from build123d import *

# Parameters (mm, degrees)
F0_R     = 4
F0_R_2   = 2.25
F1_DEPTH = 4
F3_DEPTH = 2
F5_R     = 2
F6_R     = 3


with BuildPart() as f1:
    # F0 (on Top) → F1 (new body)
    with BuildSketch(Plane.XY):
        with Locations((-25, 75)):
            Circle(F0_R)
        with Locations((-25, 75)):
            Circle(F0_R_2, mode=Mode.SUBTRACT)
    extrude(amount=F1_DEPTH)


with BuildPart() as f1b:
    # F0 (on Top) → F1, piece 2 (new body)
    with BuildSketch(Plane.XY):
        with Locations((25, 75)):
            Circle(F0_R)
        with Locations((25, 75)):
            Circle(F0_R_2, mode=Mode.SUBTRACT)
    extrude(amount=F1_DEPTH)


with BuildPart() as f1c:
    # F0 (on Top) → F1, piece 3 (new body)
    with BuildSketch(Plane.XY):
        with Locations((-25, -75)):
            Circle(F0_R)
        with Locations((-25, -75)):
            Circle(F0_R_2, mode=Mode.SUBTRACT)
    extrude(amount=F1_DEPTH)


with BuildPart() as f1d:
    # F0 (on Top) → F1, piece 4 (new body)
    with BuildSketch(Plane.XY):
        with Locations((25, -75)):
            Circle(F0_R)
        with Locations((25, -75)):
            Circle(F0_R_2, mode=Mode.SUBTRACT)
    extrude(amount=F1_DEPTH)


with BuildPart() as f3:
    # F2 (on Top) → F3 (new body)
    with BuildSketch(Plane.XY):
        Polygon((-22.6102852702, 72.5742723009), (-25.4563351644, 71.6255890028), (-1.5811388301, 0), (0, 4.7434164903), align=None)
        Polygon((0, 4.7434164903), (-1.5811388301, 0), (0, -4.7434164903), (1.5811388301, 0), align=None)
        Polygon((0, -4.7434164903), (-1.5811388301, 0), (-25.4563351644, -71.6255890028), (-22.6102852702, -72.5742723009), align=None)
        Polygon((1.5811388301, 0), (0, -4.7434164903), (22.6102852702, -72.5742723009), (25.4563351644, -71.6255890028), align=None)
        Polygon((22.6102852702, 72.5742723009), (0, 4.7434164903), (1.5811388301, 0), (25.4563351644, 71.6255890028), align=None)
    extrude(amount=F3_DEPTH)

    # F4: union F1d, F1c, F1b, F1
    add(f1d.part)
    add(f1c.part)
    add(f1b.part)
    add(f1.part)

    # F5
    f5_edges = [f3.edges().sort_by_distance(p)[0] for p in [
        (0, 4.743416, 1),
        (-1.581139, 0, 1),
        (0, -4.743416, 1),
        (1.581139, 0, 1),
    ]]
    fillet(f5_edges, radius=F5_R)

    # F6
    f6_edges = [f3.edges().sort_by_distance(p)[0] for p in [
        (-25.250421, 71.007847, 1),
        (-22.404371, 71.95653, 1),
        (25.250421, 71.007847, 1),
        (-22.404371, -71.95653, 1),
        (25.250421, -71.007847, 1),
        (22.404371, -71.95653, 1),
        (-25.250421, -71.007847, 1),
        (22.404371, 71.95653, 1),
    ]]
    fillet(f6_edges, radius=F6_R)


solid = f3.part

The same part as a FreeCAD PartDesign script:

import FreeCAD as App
import Part
import Sketcher

V = App.Vector


def edges_at(feature, points):
    """Names of the edges that pass closest to the given points."""
    edges = feature.Shape.Edges
    near = lambda p: min(range(len(edges)), key=lambda i: edges[i].distToShape(Part.Vertex(*p))[0])
    return sorted({f"Edge{near(p) + 1}" for p in points})


def add_polygon(sketch, points):
    """Adds a closed chain of lines whose ends are joined by coincident constraints."""
    first, n = sketch.GeometryCount, len(points)
    for a, b in zip(points, points[1:] + points[:1]):
        sketch.addGeometry(Part.LineSegment(App.Vector(*a, 0), App.Vector(*b, 0)), False)
    for i in range(n):
        sketch.addConstraint(Sketcher.Constraint("Coincident", first + i, 2, first + (i + 1) % n, 1))

doc = App.newDocument("Part")
body = doc.addObject("PartDesign::Body", "Body")

# Sketch on XY plane
sketch1 = body.newObject("Sketcher::SketchObject", "Sketch")
sketch1.AttachmentSupport = (doc.getObject("XY_Plane"), [""])
sketch1.MapMode = "FlatFace"
sketch1.addGeometry(Part.Circle(V(-25, 75, 0), V(0, 0, 1), 4), False)
sketch1.addGeometry(Part.Circle(V(-25, 75, 0), V(0, 0, 1), 2.2), False)
sketch1.addConstraint(Sketcher.Constraint("Coincident", 1, 3, 0, 3))
sketch1.addConstraint(Sketcher.Constraint("Diameter", 0, 8.0))
sketch1.addConstraint(Sketcher.Constraint("Diameter", 1, 4.5))
sketch1.addConstraint(Sketcher.Constraint("DistanceX", 0, 3, -1, 1, 25.0))
sketch1.addConstraint(Sketcher.Constraint("DistanceY", -1, 1, 0, 3, 75.0))
pad1 = body.newObject("PartDesign::Pad", "Pad")
pad1.Profile = sketch1
pad1.Length = 4
body2 = doc.addObject("PartDesign::Body", "Body001")

# Sketch on XY plane
sketch2 = body2.newObject("Sketcher::SketchObject", "Sketch001")
sketch2.AttachmentSupport = (doc.getObject("XY_Plane001"), [""])
sketch2.MapMode = "FlatFace"
sketch2.addGeometry(Part.Circle(V(25, 75, 0), V(0, 0, 1), 4), False)
sketch2.addGeometry(Part.Circle(V(25, 75, 0), V(0, 0, 1), 2.2), False)
sketch2.addConstraint(Sketcher.Constraint("Coincident", 1, 3, 0, 3))
sketch2.addConstraint(Sketcher.Constraint("Diameter", 0, 8.0))
sketch2.addConstraint(Sketcher.Constraint("Diameter", 1, 4.5))
sketch2.addConstraint(Sketcher.Constraint("DistanceX", -1, 1, 0, 3, 25.0))
sketch2.addConstraint(Sketcher.Constraint("DistanceY", -1, 1, 0, 3, 75.0))
pad2 = body2.newObject("PartDesign::Pad", "Pad001")
pad2.Profile = sketch2
pad2.Length = 4
body3 = doc.addObject("PartDesign::Body", "Body002")

# Sketch on XY plane
sketch3 = body3.newObject("Sketcher::SketchObject", "Sketch002")
sketch3.AttachmentSupport = (doc.getObject("XY_Plane002"), [""])
sketch3.MapMode = "FlatFace"
sketch3.addGeometry(Part.Circle(V(-25, -75, 0), V(0, 0, 1), 4), False)
sketch3.addGeometry(Part.Circle(V(-25, -75, 0), V(0, 0, 1), 2.2), False)
sketch3.addConstraint(Sketcher.Constraint("Coincident", 1, 3, 0, 3))
sketch3.addConstraint(Sketcher.Constraint("Diameter", 0, 8.0))
sketch3.addConstraint(Sketcher.Constraint("Diameter", 1, 4.5))
sketch3.addConstraint(Sketcher.Constraint("DistanceX", 0, 3, -1, 1, 25.0))
sketch3.addConstraint(Sketcher.Constraint("DistanceY", 0, 3, -1, 1, 75.0))
pad3 = body3.newObject("PartDesign::Pad", "Pad002")
pad3.Profile = sketch3
pad3.Length = 4
body4 = doc.addObject("PartDesign::Body", "Body003")

# Sketch on XY plane
sketch4 = body4.newObject("Sketcher::SketchObject", "Sketch003")
sketch4.AttachmentSupport = (doc.getObject("XY_Plane003"), [""])
sketch4.MapMode = "FlatFace"
sketch4.addGeometry(Part.Circle(V(25, -75, 0), V(0, 0, 1), 4), False)
sketch4.addGeometry(Part.Circle(V(25, -75, 0), V(0, 0, 1), 2.2), False)
sketch4.addConstraint(Sketcher.Constraint("Coincident", 1, 3, 0, 3))
sketch4.addConstraint(Sketcher.Constraint("Diameter", 0, 8.0))
sketch4.addConstraint(Sketcher.Constraint("Diameter", 1, 4.5))
sketch4.addConstraint(Sketcher.Constraint("DistanceX", -1, 1, 0, 3, 25.0))
sketch4.addConstraint(Sketcher.Constraint("DistanceY", 0, 3, -1, 1, 75.0))
pad4 = body4.newObject("PartDesign::Pad", "Pad003")
pad4.Profile = sketch4
pad4.Length = 4
body5 = doc.addObject("PartDesign::Body", "Body004")

# Sketch on XY plane
sketch5 = body5.newObject("Sketcher::SketchObject", "Sketch004")
sketch5.AttachmentSupport = (doc.getObject("XY_Plane004"), [""])
sketch5.MapMode = "FlatFace"
add_polygon(sketch5, [(-22.6, 72.6), (-25.5, 71.6), (-1.6, 0), (-25.5, -71.6), (-22.6, -72.6), (0, -4.7), (22.6, -72.6), (25.5, -71.6), (1.6, 0), (25.5, 71.6), (22.6, 72.6), (0, 4.7)])  # lines 0-11
sketch5.addConstraint(Sketcher.Constraint("Symmetric", 0, 2, 6, 2, -1, 1))
sketch5.addConstraint(Sketcher.Constraint("Symmetric", 1, 2, 7, 2, -1, 1))
sketch5.addConstraint(Sketcher.Constraint("Symmetric", 2, 2, 8, 2, -1, 1))
sketch5.addConstraint(Sketcher.Constraint("Symmetric", 3, 2, 9, 2, -1, 1))
sketch5.addConstraint(Sketcher.Constraint("Symmetric", 4, 2, 10, 2, -1, 1))
sketch5.addConstraint(Sketcher.Constraint("Symmetric", 5, 2, 11, 2, -1, 1))
sketch5.addConstraint(Sketcher.Constraint("Symmetric", 3, 2, 5, 2, -2))
sketch5.addConstraint(Sketcher.Constraint("Symmetric", 2, 2, 6, 2, -2))
sketch5.addConstraint(Sketcher.Constraint("PointOnObject", 1, 2, -1))
sketch5.addConstraint(Sketcher.Constraint("PointOnObject", 4, 2, -2))
sketch5.addConstraint(Sketcher.Constraint("Perpendicular", 0, 1))
sketch5.addConstraint(Sketcher.Constraint("Perpendicular", 3, 4))
sketch5.addConstraint(Sketcher.Constraint("Distance", 0, 3.0))
sketch5.addConstraint(Sketcher.Constraint("Distance", 1, 75.5))
sketch5.addConstraint(Sketcher.Constraint("Distance", 4, 71.5))
sketch5.addConstraint(Sketcher.Constraint("DistanceY", -1, 1, 0, 2, 71.625589))
pad5 = body5.newObject("PartDesign::Pad", "Pad004")
pad5.Profile = sketch5
pad5.Length = 2
doc.recompute()

boolean = body5.newObject("PartDesign::Boolean", "Boolean")
boolean.Type = "Fuse"
boolean.addObjects([body4])
doc.recompute()

boolean2 = body5.newObject("PartDesign::Boolean", "Boolean001")
boolean2.Type = "Fuse"
boolean2.addObjects([body3])
doc.recompute()

boolean3 = body5.newObject("PartDesign::Boolean", "Boolean002")
boolean3.Type = "Fuse"
boolean3.addObjects([body2])
doc.recompute()

boolean4 = body5.newObject("PartDesign::Boolean", "Boolean003")
boolean4.Type = "Fuse"
boolean4.addObjects([body])
doc.recompute()

fillet = body5.newObject("PartDesign::Fillet", "Fillet")
fillet.Base = (boolean4, edges_at(boolean4, [
    (0, 4.743, 1),
    (-1.581, 0, 1),
    (0, -4.743, 1),
    (1.581, 0, 1),
]))
fillet.Radius = 2
doc.recompute()

fillet2 = body5.newObject("PartDesign::Fillet", "Fillet001")
fillet2.Base = (fillet, edges_at(fillet, [
    (-25.25, 71.008, 1),
    (-22.404, 71.957, 1),
    (25.25, 71.008, 1),
    (-22.404, -71.957, 1),
    (25.25, -71.008, 1),
    (22.404, -71.957, 1),
    (-25.25, -71.008, 1),
    (22.404, 71.957, 1),
]))
fillet2.Radius = 3

doc.recompute()
